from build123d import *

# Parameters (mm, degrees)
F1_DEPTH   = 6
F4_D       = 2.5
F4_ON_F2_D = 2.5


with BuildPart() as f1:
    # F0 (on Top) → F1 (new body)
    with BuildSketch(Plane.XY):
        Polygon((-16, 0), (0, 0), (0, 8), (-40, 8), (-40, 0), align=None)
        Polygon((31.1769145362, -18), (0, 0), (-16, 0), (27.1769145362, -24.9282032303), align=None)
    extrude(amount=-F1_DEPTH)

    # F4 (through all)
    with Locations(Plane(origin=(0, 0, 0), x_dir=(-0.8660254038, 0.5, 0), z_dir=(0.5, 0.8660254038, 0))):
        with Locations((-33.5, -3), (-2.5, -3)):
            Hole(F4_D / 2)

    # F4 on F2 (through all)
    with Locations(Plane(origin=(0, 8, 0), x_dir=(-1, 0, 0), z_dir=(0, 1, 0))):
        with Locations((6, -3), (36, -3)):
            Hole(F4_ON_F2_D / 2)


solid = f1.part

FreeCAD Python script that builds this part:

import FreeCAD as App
import Part
import Sketcher
Q = App.Units.Quantity


def add_polygon(sketch, points):
    """Adds a closed chain of lines whose ends are joined by coincident constraints."""
    first, n = sketch.GeometryCount, len(points)
    for a, b in zip(points, points[1:] + points[:1]):
        sketch.addGeometry(Part.LineSegment(App.Vector(*a, 0), App.Vector(*b, 0)), False)
    for i in range(n):
        sketch.addConstraint(Sketcher.Constraint("Coincident", first + i, 2, first + (i + 1) % n, 1))

doc = App.newDocument("Part")
body = doc.addObject("PartDesign::Body", "Body")

# Sketch on XY plane
sketch1 = body.newObject("Sketcher::SketchObject", "Sketch")
sketch1.AttachmentSupport = (doc.getObject("XY_Plane"), [""])
sketch1.MapMode = "FlatFace"
add_polygon(sketch1, [(0, 0), (0, 8), (-40, 8), (-40, 0), (-16, 0), (27.176915, -24.928203), (31.176915, -18)])  # lines 0-6
sketch1.addConstraint([
    Sketcher.Constraint("Vertical", 0),
    Sketcher.Constraint("Horizontal", 1),
    Sketcher.Constraint("Vertical", 2),
    Sketcher.Constraint("Horizontal", 3),
    Sketcher.Constraint("Coincident", 6, 2, -1, 1),
    Sketcher.Constraint("PointOnObject", 2, 2, -1),
    Sketcher.Constraint("Perpendicular", 4, 5),
    Sketcher.Constraint("Perpendicular", 5, 6),
    Sketcher.Constraint("DistanceX", 1, 2, 1, 1, 40.0),
    Sketcher.Constraint("DistanceX", 3, 1, 3, 2, 24.0),
    Sketcher.Constraint("DistanceY", 0, 1, 0, 2, 8.0),
    Sketcher.Constraint("Angle", 4, Q("-30 deg")),
    Sketcher.Constraint("Distance", 6, 36.0),
])
pad1 = body.newObject("PartDesign::Pad", "Pad")
pad1.Profile = sketch1
pad1.Length = 6
pad1.Reversed = True

# Sketch on an angled plane
sketch2 = body.newObject("Sketcher::SketchObject", "Sketch001")
sketch2.Placement = App.Placement(App.Vector(0, 0, 0), App.Rotation(App.Vector(-0.866025404, 0.5, 0), App.Vector(0, 0, 1), App.Vector(0.5, 0.866025404, 0), "ZXY"))
sketch2.addGeometry([
    Part.Circle(App.Vector(-33.5, -3, 0), App.Vector(0, 0, 1), 1.25),
    Part.Circle(App.Vector(-2.5, -3, 0), App.Vector(0, 0, 1), 1.25),
], False)
sketch2.addConstraint([
    Sketcher.Constraint("Equal", 0, 1),
    Sketcher.Constraint("Horizontal", 0, 3, 1, 3),
    Sketcher.Constraint("Diameter", 0, 2.5),
    Sketcher.Constraint("DistanceY", 0, 3, -1, 1, 3.0),
    Sketcher.Constraint("DistanceX", 0, 3, 1, 3, 31.0),
    Sketcher.Constraint("DistanceX", 0, 3, -1, 1, 33.5),
])
doc.recompute()
hole = body.newObject("PartDesign::Hole", "Hole")
hole.Profile = sketch2
hole.ThreadType = "None"
hole.Diameter = 2.5
hole.DepthType = "ThroughAll"

# Sketch on XZ plane
sketch3 = body.newObject("Sketcher::SketchObject", "Sketch002")
sketch3.AttachmentSupport = (doc.getObject("XZ_Plane"), [""])
sketch3.MapMode = "FlatFace"
sketch3.AttachmentOffset = App.Placement(App.Vector(0, 0, -8), App.Rotation())
sketch3.addGeometry([
    Part.Circle(App.Vector(-6, -3, 0), App.Vector(0, 0, 1), 1.25),
    Part.Circle(App.Vector(-36, -3, 0), App.Vector(0, 0, 1), 1.25),
], False)
sketch3.addConstraint([
    Sketcher.Constraint("Equal", 0, 1),
    Sketcher.Constraint("Horizontal", 0, 3, 1, 3),
    Sketcher.Constraint("Diameter", 0, 2.5),
    Sketcher.Constraint("DistanceX", 0, 3, -1, 1, 6.0),
    Sketcher.Constraint("DistanceY", 0, 3, -1, 1, 3.0),
    Sketcher.Constraint("DistanceX", 1, 3, -1, 1, 36.0),
])
doc.recompute()
hole2 = body.newObject("PartDesign::Hole", "Hole001")
hole2.Profile = sketch3
hole2.ThreadType = "None"
hole2.Diameter = 2.5
hole2.DepthType = "ThroughAll"
hole2.Reversed = True

doc.recompute()
